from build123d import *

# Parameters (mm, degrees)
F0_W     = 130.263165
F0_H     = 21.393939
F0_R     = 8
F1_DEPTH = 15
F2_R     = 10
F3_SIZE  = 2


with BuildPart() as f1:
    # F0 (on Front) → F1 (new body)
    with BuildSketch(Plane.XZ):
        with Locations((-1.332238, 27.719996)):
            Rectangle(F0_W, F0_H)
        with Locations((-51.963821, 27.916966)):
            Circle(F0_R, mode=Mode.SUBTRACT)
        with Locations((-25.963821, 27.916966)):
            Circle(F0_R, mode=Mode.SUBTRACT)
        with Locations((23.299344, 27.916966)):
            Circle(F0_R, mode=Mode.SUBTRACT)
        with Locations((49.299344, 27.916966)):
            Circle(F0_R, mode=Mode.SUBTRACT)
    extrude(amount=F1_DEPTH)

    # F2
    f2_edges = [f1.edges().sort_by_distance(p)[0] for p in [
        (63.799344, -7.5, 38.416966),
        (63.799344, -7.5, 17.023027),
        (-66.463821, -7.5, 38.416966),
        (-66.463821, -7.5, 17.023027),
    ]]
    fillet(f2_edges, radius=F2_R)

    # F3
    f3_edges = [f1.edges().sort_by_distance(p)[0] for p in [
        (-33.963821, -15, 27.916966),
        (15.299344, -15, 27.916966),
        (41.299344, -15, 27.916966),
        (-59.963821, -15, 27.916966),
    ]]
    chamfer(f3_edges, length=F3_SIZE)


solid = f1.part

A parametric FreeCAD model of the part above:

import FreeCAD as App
import Part
import Sketcher
Q = App.Units.Quantity


def edges_at(feature, points):
    """Names of the edges that pass closest to the given points."""
    edges = feature.Shape.Edges
    near = lambda p: min(range(len(edges)), key=lambda i: edges[i].distToShape(Part.Vertex(*p))[0])
    return sorted({f"Edge{near(p) + 1}" for p in points})

doc = App.newDocument("Part")
body = doc.addObject("PartDesign::Body", "Body")

# Sketch on XZ plane
sketch1 = body.newObject("Sketcher::SketchObject", "Sketch")
sketch1.AttachmentSupport = (doc.getObject("XZ_Plane"), [""])
sketch1.MapMode = "FlatFace"
sketch1.addGeometry([
    Part.LineSegment(App.Vector(-66.46382, 38.416966, 0), App.Vector(-66.46382, 17.023027, 0)),  # 0
    Part.LineSegment(App.Vector(-66.46382, 17.023027, 0), App.Vector(63.799344, 17.023027, 0)),  # 1
    Part.LineSegment(App.Vector(63.799344, 17.023027, 0), App.Vector(63.799344, 38.416966, 0)),  # 2
    Part.LineSegment(App.Vector(63.799344, 38.416966, 0), App.Vector(-66.46382, 38.416966, 0)),  # 3
    Part.Circle(App.Vector(-51.963821, 27.916966, 0), App.Vector(0, 0, 1), 8),  # 4
    Part.Circle(App.Vector(-25.963821, 27.916966, 0), App.Vector(0, 0, 1), 8),  # 5
    Part.Circle(App.Vector(23.299344, 27.916966, 0), App.Vector(0, 0, 1), 8),  # 6
    Part.Circle(App.Vector(49.299344, 27.916966, 0), App.Vector(0, 0, 1), 8),  # 7
], False)
sketch1.addConstraint([
    Sketcher.Constraint("Coincident", 0, 2, 1, 1),
    Sketcher.Constraint("Coincident", 1, 2, 2, 1),
    Sketcher.Constraint("Coincident", 2, 2, 3, 1),
    Sketcher.Constraint("Coincident", 3, 2, 0, 1),
    Sketcher.Constraint("Vertical", 0),
    Sketcher.Constraint("Horizontal", 1),
    Sketcher.Constraint("Vertical", 2),
    Sketcher.Constraint("Horizontal", 3),
    Sketcher.Constraint("Equal", 4, 5),
    Sketcher.Constraint("Equal", 5, 6),
    Sketcher.Constraint("Equal", 6, 7),
    Sketcher.Constraint("Horizontal", 4, 3, 5, 3),
    Sketcher.Constraint("Horizontal", 5, 3, 6, 3),
    Sketcher.Constraint("Horizontal", 6, 3, 7, 3),
    Sketcher.Constraint("Diameter", 4, Q("16 mm")),
    Sketcher.Constraint("DistanceX", 4, 3, 5, 3, Q("26 mm")),
    Sketcher.Constraint("DistanceX", 6, 3, 7, 3, Q("26 mm")),
    Sketcher.Constraint("DistanceX", 0, 2, 4, 3, Q("14.499999 mm")),
    Sketcher.Constraint("DistanceX", 7, 3, 1, 2, Q("14.5 mm")),
    Sketcher.Constraint("DistanceY", 7, 3, 2, 2, Q("10.5 mm")),
    Sketcher.Constraint("DistanceY", 0, 2, 0, 1, Q("21.393939 mm")),
    Sketcher.Constraint("DistanceX", 1, 1, 1, 2, Q("130.263165 mm")),
    Sketcher.Constraint("DistanceX", 4, 3, -1, 1, Q("51.963821 mm")),
    Sketcher.Constraint("DistanceY", -1, 1, 4, 3, Q("27.916966 mm")),
])
pad1 = body.newObject("PartDesign::Pad", "Pad")
pad1.Profile = sketch1
pad1.Length = 15
doc.recompute()

fillet = body.newObject("PartDesign::Fillet", "Fillet")
fillet.Base = (pad1, edges_at(pad1, [
    (63.799, -7.5, 38.417),
    (63.799, -7.5, 17.023),
    (-66.464, -7.5, 38.417),
    (-66.464, -7.5, 17.023),
]))
fillet.Radius = 10
doc.recompute()

chamfer = body.newObject("PartDesign::Chamfer", "Chamfer")
chamfer.Base = (fillet, edges_at(fillet, [
    (-33.964, -15, 27.917),
    (15.299, -15, 27.917),
    (41.299, -15, 27.917),
    (-59.964, -15, 27.917),
]))
chamfer.Size = 2

doc.recompute()
